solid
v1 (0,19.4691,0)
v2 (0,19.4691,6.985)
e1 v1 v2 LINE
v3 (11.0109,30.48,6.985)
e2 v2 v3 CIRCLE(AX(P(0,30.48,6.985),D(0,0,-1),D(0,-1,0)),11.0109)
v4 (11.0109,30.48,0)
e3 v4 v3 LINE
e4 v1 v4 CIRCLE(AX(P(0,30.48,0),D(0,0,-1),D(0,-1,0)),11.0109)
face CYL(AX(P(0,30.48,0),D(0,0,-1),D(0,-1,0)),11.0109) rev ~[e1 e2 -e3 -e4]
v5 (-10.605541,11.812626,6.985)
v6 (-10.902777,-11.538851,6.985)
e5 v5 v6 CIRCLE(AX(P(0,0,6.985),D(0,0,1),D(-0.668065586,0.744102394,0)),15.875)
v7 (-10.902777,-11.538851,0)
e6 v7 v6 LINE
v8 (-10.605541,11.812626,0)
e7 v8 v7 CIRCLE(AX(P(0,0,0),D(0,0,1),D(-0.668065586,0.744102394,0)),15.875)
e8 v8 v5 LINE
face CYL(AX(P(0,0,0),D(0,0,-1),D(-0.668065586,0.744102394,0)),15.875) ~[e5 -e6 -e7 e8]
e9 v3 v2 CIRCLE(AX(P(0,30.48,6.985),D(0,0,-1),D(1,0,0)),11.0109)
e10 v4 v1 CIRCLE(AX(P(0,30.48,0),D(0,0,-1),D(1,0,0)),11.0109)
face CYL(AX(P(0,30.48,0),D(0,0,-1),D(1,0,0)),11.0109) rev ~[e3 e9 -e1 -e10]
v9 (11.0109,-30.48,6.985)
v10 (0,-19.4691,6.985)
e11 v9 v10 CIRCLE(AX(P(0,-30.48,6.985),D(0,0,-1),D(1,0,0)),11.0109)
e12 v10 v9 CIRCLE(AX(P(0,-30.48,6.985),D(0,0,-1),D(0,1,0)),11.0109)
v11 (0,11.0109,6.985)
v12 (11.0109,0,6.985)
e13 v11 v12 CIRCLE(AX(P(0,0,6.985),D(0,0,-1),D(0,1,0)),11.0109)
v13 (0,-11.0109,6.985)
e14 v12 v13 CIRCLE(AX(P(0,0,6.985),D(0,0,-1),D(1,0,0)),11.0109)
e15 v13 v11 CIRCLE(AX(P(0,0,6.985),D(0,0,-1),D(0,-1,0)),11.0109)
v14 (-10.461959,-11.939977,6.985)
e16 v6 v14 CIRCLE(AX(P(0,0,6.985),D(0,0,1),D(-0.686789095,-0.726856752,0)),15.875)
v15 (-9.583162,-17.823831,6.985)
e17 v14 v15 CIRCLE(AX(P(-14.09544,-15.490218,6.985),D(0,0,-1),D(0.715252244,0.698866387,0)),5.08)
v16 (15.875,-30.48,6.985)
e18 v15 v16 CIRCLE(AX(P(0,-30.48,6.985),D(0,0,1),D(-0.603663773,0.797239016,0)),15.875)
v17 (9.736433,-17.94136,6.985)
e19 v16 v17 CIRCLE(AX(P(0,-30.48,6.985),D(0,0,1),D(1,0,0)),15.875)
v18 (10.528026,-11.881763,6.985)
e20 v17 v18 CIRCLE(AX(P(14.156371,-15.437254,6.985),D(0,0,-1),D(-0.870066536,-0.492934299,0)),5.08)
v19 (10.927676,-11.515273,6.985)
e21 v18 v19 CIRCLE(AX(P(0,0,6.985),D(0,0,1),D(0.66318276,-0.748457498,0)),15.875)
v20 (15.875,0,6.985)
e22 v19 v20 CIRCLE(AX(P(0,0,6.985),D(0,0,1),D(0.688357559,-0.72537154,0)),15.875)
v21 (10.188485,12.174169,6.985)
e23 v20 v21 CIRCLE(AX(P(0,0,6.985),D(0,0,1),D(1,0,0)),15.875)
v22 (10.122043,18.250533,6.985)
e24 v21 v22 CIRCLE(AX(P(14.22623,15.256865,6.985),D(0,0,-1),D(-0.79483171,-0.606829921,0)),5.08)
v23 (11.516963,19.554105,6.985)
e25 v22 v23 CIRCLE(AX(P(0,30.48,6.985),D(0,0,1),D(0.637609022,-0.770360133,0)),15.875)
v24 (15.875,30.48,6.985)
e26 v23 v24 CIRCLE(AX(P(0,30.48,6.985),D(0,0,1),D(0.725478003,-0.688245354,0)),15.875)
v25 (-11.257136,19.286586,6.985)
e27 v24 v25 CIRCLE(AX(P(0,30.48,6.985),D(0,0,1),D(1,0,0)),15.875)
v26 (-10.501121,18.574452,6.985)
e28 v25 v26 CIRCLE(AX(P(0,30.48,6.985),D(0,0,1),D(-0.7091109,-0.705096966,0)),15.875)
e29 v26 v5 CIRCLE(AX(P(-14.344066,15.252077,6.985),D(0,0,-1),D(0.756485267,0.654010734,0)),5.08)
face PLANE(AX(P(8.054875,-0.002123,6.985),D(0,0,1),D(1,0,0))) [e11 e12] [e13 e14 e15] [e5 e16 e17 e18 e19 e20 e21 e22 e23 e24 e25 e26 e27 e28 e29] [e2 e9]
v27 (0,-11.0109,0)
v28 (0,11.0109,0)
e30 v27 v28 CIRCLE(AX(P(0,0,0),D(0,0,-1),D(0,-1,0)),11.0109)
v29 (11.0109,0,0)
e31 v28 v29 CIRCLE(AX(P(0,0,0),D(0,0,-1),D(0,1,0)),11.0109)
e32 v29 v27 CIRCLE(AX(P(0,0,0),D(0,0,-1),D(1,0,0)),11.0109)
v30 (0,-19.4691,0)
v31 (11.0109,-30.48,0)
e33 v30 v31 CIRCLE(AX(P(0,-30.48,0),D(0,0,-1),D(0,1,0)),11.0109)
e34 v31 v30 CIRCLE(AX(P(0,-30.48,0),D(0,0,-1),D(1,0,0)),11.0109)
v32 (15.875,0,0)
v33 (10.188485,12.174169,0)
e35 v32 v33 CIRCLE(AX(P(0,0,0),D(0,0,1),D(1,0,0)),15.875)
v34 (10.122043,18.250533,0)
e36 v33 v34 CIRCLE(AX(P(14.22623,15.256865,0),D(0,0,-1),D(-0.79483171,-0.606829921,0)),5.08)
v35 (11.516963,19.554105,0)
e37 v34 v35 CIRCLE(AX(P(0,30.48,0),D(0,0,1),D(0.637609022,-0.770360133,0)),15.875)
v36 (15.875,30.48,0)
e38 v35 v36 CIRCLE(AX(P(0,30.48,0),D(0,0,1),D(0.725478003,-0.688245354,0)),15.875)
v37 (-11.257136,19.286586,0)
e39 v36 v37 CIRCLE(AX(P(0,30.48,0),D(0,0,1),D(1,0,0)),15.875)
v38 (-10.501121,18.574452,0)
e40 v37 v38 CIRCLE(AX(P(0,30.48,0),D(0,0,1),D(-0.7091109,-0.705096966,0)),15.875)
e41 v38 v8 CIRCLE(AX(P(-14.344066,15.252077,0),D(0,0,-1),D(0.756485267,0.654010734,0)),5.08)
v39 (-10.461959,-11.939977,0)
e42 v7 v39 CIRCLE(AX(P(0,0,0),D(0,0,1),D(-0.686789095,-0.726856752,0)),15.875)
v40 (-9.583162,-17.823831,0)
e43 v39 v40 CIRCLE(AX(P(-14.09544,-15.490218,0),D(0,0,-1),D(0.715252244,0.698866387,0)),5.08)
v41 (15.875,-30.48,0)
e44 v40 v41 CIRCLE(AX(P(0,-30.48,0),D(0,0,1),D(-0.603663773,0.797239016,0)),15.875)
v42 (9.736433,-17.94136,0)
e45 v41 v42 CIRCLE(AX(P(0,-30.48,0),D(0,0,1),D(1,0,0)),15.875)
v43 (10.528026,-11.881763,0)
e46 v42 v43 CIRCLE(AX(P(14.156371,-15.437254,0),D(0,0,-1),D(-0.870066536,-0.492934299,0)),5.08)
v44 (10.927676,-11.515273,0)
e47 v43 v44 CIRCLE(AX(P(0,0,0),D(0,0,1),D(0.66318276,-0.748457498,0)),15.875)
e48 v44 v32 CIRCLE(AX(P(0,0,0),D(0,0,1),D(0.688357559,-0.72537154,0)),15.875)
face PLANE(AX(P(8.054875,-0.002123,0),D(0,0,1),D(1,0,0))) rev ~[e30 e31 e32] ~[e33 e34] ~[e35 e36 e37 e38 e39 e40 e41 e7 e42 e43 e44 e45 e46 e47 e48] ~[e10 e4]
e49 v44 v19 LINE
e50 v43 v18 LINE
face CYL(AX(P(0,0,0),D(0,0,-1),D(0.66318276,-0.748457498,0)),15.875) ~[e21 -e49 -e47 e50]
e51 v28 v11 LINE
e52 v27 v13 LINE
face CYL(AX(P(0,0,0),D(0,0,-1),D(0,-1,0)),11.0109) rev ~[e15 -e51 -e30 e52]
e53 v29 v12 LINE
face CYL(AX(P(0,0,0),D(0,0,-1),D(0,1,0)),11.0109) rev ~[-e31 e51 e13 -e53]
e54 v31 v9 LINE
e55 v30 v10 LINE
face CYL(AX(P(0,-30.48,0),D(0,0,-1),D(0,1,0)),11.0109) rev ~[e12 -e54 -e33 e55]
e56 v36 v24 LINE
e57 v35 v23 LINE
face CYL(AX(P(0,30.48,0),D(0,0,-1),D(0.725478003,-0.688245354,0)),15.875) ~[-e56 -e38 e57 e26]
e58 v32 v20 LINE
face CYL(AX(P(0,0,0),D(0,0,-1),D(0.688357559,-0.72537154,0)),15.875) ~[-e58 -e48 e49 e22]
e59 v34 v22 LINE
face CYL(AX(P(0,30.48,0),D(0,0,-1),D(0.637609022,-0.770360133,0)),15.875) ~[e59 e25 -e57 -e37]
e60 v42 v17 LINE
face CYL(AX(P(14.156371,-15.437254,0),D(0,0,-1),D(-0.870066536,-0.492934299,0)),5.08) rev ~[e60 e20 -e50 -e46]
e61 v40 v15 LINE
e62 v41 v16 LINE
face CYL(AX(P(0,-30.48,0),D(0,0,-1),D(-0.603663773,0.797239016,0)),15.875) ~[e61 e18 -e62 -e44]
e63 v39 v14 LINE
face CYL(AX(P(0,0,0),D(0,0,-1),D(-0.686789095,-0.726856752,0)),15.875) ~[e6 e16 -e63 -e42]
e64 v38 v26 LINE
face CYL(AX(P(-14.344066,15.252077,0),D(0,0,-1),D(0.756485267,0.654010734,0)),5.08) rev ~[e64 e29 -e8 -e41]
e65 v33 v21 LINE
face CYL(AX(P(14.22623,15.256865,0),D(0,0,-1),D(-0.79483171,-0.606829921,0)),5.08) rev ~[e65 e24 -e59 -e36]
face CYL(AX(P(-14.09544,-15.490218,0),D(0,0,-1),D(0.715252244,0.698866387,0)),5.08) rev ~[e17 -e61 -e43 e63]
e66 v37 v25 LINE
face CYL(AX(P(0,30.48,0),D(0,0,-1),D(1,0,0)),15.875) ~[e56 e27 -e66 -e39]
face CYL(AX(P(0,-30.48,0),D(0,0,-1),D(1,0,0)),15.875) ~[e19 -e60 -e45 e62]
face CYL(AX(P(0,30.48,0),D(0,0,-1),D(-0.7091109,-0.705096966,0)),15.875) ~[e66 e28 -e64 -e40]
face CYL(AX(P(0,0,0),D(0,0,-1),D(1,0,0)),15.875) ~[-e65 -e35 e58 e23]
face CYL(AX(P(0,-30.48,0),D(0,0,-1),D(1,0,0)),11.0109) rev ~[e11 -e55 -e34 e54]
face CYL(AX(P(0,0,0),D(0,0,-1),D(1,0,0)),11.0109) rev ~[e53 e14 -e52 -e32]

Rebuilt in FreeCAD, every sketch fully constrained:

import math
import FreeCAD as App
import Part
import Sketcher
Q = App.Units.Quantity

doc = App.newDocument("Part")
body = doc.addObject("PartDesign::Body", "Body")

sketch1 = doc.addObject("Sketcher::SketchObject", "Sketch")
body.addObject(sketch1)
sketch1.AttachmentSupport = (doc.XY_Plane, [""])
sketch1.MapMode = "FlatFace"
sketch1.addGeometry([
    Part.ArcOfCircle(Part.Circle(App.Vector(0, 0, 0), App.Vector(0, 0, 1), 15.9), math.radians(50), math.radians(74)),
    Part.ArcOfCircle(Part.Circle(App.Vector(0, 30.5, 0), App.Vector(0, 0, 1), 15.9), math.radians(-74), math.radians(-50)),
    Part.ArcOfCircle(Part.Circle(App.Vector(14.2, 15.3, 0), App.Vector(0, 0, 1), 5.1), math.radians(122), math.radians(144)),
    Part.ArcOfCircle(Part.Circle(App.Vector(0, 30.5, 0), App.Vector(0, 0, 1), 15.9), math.radians(-43), math.radians(0)),
    Part.ArcOfCircle(Part.Circle(App.Vector(0, 30.5, 0), App.Vector(0, 0, 1), 15.9), math.radians(0), math.radians(225)),
    Part.ArcOfCircle(Part.Circle(App.Vector(-14.3, 15.3, 0), App.Vector(0, 0, 1), 5.1), math.radians(40.84), math.radians(52.58)),
    Part.ArcOfCircle(Part.Circle(App.Vector(0, 30.5, 0), App.Vector(0, 0, 1), 15.9), math.radians(-131), math.radians(-106)),
    Part.ArcOfCircle(Part.Circle(App.Vector(0, 0, 0), App.Vector(0, 0, 1), 15.9), math.radians(106), math.radians(132)),
    Part.ArcOfCircle(Part.Circle(App.Vector(0, 0, 0), App.Vector(0, 0, 1), 15.9), math.radians(132), math.radians(227)),
    Part.ArcOfCircle(Part.Circle(App.Vector(-14.1, -15.5, 0), App.Vector(0, 0, 1), 5.1), math.radians(44.34), math.radians(51.06)),
    Part.ArcOfCircle(Part.Circle(App.Vector(0, 0, 0), App.Vector(0, 0, 1), 15.9), math.radians(-131), math.radians(-106)),
    Part.ArcOfCircle(Part.Circle(App.Vector(0, -30.5, 0), App.Vector(0, 0, 1), 15.9), math.radians(106), math.radians(127)),
    Part.ArcOfCircle(Part.Circle(App.Vector(0, -30.5, 0), App.Vector(0, 0, 1), 15.9), math.radians(127), math.radians(360)),
    Part.ArcOfCircle(Part.Circle(App.Vector(0, -30.5, 0), App.Vector(0, 0, 1), 15.9), math.radians(0), math.radians(52)),
    Part.ArcOfCircle(Part.Circle(App.Vector(0, -30.5, 0), App.Vector(0, 0, 1), 15.9), math.radians(52), math.radians(74)),
    Part.ArcOfCircle(Part.Circle(App.Vector(0, 0, 0), App.Vector(0, 0, 1), 15.9), math.radians(-74), math.radians(-48)),
    Part.ArcOfCircle(Part.Circle(App.Vector(14.2, -15.4, 0), App.Vector(0, 0, 1), 5.1), math.radians(129.46), math.radians(135.58)),
    Part.ArcOfCircle(Part.Circle(App.Vector(0, 0, 0), App.Vector(0, 0, 1), 15.9), math.radians(-46), math.radians(0)),
    Part.ArcOfCircle(Part.Circle(App.Vector(0, 0, 0), App.Vector(0, 0, 1), 15.9), math.radians(0), math.radians(50)),
    Part.ArcOfCircle(Part.Circle(App.Vector(0, -30.5, 0), App.Vector(0, 0, 1), 11), math.radians(0), math.radians(90)),
    Part.ArcOfCircle(Part.Circle(App.Vector(0, -30.5, 0), App.Vector(0, 0, 1), 11), math.radians(90), math.radians(360)),
    Part.ArcOfCircle(Part.Circle(App.Vector(0, 0, 0), App.Vector(0, 0, 1), 11), math.radians(90), math.radians(270)),
    Part.ArcOfCircle(Part.Circle(App.Vector(0, 0, 0), App.Vector(0, 0, 1), 11), math.radians(0), math.radians(90)),
    Part.ArcOfCircle(Part.Circle(App.Vector(0, 0, 0), App.Vector(0, 0, 1), 11), math.radians(-90), math.radians(0)),
    Part.ArcOfCircle(Part.Circle(App.Vector(0, 30.5, 0), App.Vector(0, 0, 1), 11), math.radians(0), math.radians(270)),
    Part.ArcOfCircle(Part.Circle(App.Vector(0, 30.5, 0), App.Vector(0, 0, 1), 11), math.radians(-90), math.radians(0)),
], False)
sketch1.addConstraint([
    Sketcher.Constraint("Coincident", 0, 2, 1, 1),
    Sketcher.Constraint("Coincident", 1, 2, 2, 2),
    Sketcher.Constraint("Coincident", 2, 1, 3, 1),
    Sketcher.Constraint("Tangent", 3, 2, 4, 1),
    Sketcher.Constraint("Coincident", 4, 2, 5, 2),
    Sketcher.Constraint("Coincident", 5, 1, 6, 1),
    Sketcher.Constraint("Coincident", 6, 2, 7, 1),
    Sketcher.Constraint("Tangent", 7, 2, 8, 1),
    Sketcher.Constraint("Coincident", 8, 2, 9, 2),
    Sketcher.Constraint("Coincident", 9, 1, 10, 1),
    Sketcher.Constraint("Coincident", 10, 2, 11, 1),
    Sketcher.Constraint("Tangent", 11, 2, 12, 1),
    Sketcher.Constraint("Tangent", 12, 2, 13, 1),
    Sketcher.Constraint("Tangent", 13, 2, 14, 1),
    Sketcher.Constraint("Coincident", 14, 2, 15, 1),
    Sketcher.Constraint("Coincident", 15, 2, 16, 2),
    Sketcher.Constraint("Coincident", 16, 1, 17, 1),
    Sketcher.Constraint("Tangent", 17, 2, 18, 1),
    Sketcher.Constraint("Tangent", 18, 2, 0, 1),
    Sketcher.Constraint("Tangent", 19, 1, 20, 2),
    Sketcher.Constraint("Coincident", 20, 1, 19, 2),
    Sketcher.Constraint("Tangent", 21, 1, 22, 2),
    Sketcher.Constraint("Tangent", 22, 1, 23, 2),
    Sketcher.Constraint("Tangent", 23, 1, 21, 2),
    Sketcher.Constraint("Tangent", 24, 1, 25, 2),
    Sketcher.Constraint("Coincident", 25, 1, 24, 2),
    Sketcher.Constraint("Coincident", 0, 3, -1, 1),
    Sketcher.Constraint("Coincident", 7, 3, -1, 1),
    Sketcher.Constraint("Coincident", 10, 3, -1, 1),
    Sketcher.Constraint("Coincident", 15, 3, -1, 1),
    Sketcher.Constraint("Coincident", 17, 3, -1, 1),
    Sketcher.Constraint("Coincident", 21, 3, -1, 1),
    Sketcher.Constraint("Coincident", 3, 3, 1, 3),
    Sketcher.Constraint("Coincident", 6, 3, 1, 3),
    Sketcher.Constraint("Coincident", 13, 3, 11, 3),
    Sketcher.Constraint("Coincident", 19, 3, 11, 3),
    Sketcher.Constraint("Coincident", 24, 3, 1, 3),
    Sketcher.Constraint("Equal", 0, 1),
    Sketcher.Constraint("Equal", 1, 3),
    Sketcher.Constraint("Equal", 3, 4),
    Sketcher.Constraint("Equal", 2, 5),
    Sketcher.Constraint("Equal", 4, 6),
    Sketcher.Constraint("Equal", 6, 7),
    Sketcher.Constraint("Equal", 7, 8),
    Sketcher.Constraint("Equal", 5, 9),
    Sketcher.Constraint("Equal", 8, 10),
    Sketcher.Constraint("Equal", 10, 11),
    Sketcher.Constraint("Equal", 13, 14),
    Sketcher.Constraint("Equal", 14, 15),
    Sketcher.Constraint("Equal", 9, 16),
    Sketcher.Constraint("Equal", 20, 21),
    Sketcher.Constraint("Equal", 23, 24),
    Sketcher.Constraint("Symmetric", 1, 3, 11, 3, -1, 1),
    Sketcher.Constraint("Symmetric", 3, 2, 12, 2, -1),
    Sketcher.Constraint("PointOnObject", 17, 2, -1),
    Sketcher.Constraint("PointOnObject", 20, 1, -2),
    Sketcher.Constraint("PointOnObject", 21, 1, -2),
    Sketcher.Constraint("PointOnObject", 22, 1, -1),
    Sketcher.Constraint("PointOnObject", 23, 1, -2),
    Sketcher.Constraint("PointOnObject", 25, 1, -2),
    Sketcher.Constraint("Horizontal", 25, 3, 3, 2),
    Sketcher.Constraint("Horizontal", 12, 2, 19, 1),
    Sketcher.Constraint("Horizontal", 3, 2, 24, 1),
    Sketcher.Constraint("Radius", 2, Q("0.2 in")),
    Sketcher.Constraint("Radius", 0, Q("0.625 in")),
    Sketcher.Constraint("DistanceY", -1, 1, 1, 3, Q("1.2 in")),
    Sketcher.Constraint("Radius", 19, Q("0.4335 in")),
    Sketcher.Constraint("DistanceX", -1, 1, 2, 3, Q("14.22623 mm")),
    Sketcher.Constraint("DistanceX", 9, 3, -1, 1, Q("14.09544 mm")),
    Sketcher.Constraint("DistanceX", -1, 1, 16, 3, Q("14.156371 mm")),
    Sketcher.Constraint("DistanceX", 5, 1, -1, 1, Q("10.501121 mm")),
    Sketcher.Constraint("DistanceX", 7, 2, -1, 1, Q("10.605541 mm")),
    Sketcher.Constraint("DistanceY", 8, 2, -1, 1, Q("11.538851 mm")),
    Sketcher.Constraint("DistanceY", 11, 2, -1, 1, Q("17.823831 mm")),
    Sketcher.Constraint("DistanceY", 13, 2, -1, 1, Q("17.94136 mm")),
    Sketcher.Constraint("DistanceY", -1, 1, 18, 2, Q("12.174169 mm")),
    Sketcher.Constraint("DistanceX", 1, 2, 2, 1, Q("1.39492 mm")),
    Sketcher.Constraint("DistanceX", 5, 3, 4, 2, Q("3.086931 mm")),
    Sketcher.Constraint("DistanceY", 16, 3, 15, 2, Q("3.555491 mm")),
])
pad1 = doc.addObject("PartDesign::Pad", "Pad")
body.addObject(pad1)
pad1.Profile = sketch1
pad1.Length = Q("0.275 in")

sketch2 = doc.addObject("Sketcher::SketchObject", "Sketch001")
body.addObject(sketch2)
sketch2.AttachmentSupport = (doc.XY_Plane, [""])
sketch2.MapMode = "FlatFace"
sketch2.addGeometry([
    Part.ArcOfCircle(Part.Circle(App.Vector(-14.1, -15.5, 0), App.Vector(0, 0, 1), 5.1), math.radians(-27), math.radians(44)),
    Part.ArcOfCircle(Part.Circle(App.Vector(0, -30.5, 0), App.Vector(0, 0, 1), 15.9), math.radians(127), math.radians(360)),
    Part.ArcOfCircle(Part.Circle(App.Vector(0, -30.5, 0), App.Vector(0, 0, 1), 15.9), math.radians(0), math.radians(52)),
    Part.ArcOfCircle(Part.Circle(App.Vector(14.2, -15.4, 0), App.Vector(0, 0, 1), 5.1), math.radians(136), math.radians(210)),
    Part.ArcOfCircle(Part.Circle(App.Vector(0, 0, 0), App.Vector(0, 0, 1), 15.9), math.radians(-48.46), math.radians(-46.5)),
    Part.ArcOfCircle(Part.Circle(App.Vector(0, 0, 0), App.Vector(0, 0, 1), 15.9), math.radians(-46), math.radians(0)),
    Part.ArcOfCircle(Part.Circle(App.Vector(0, 0, 0), App.Vector(0, 0, 1), 15.9), math.radians(0), math.radians(50)),
    Part.ArcOfCircle(Part.Circle(App.Vector(14.2, 15.3, 0), App.Vector(0, 0, 1), 5.1), math.radians(144), math.radians(217)),
    Part.ArcOfCircle(Part.Circle(App.Vector(0, 30.5, 0), App.Vector(0, 0, 1), 15.9), math.radians(-50.39), math.radians(-43.49)),
    Part.ArcOfCircle(Part.Circle(App.Vector(0, 30.5, 0), App.Vector(0, 0, 1), 15.9), math.radians(-43), math.radians(0)),
    Part.ArcOfCircle(Part.Circle(App.Vector(0, 30.5, 0), App.Vector(0, 0, 1), 15.9), math.radians(0), math.radians(225)),
    Part.ArcOfCircle(Part.Circle(App.Vector(0, 30.5, 0), App.Vector(0, 0, 1), 15.9), math.radians(-135.16), math.radians(-131.41)),
    Part.ArcOfCircle(Part.Circle(App.Vector(-14.3, 15.3, 0), App.Vector(0, 0, 1), 5.1), math.radians(-43), math.radians(41)),
    Part.ArcOfCircle(Part.Circle(App.Vector(0, 0, 0), App.Vector(0, 0, 1), 15.9), math.radians(132), math.radians(227)),
    Part.ArcOfCircle(Part.Circle(App.Vector(0, 0, 0), App.Vector(0, 0, 1), 15.9), math.radians(-133.38), math.radians(-131.23)),
    Part.ArcOfCircle(Part.Circle(App.Vector(0, -30.5, 0), App.Vector(0, 0, 1), 11), math.radians(90), math.radians(360)),
    Part.ArcOfCircle(Part.Circle(App.Vector(0, -30.5, 0), App.Vector(0, 0, 1), 11), math.radians(0), math.radians(90)),
    Part.ArcOfCircle(Part.Circle(App.Vector(0, 0, 0), App.Vector(0, 0, 1), 15.9), math.radians(-106.26), math.radians(-90)),
    Part.ArcOfCircle(Part.Circle(App.Vector(0, -30.5, 0), App.Vector(0, 0, 1), 15.9), math.radians(90), math.radians(106.26)),
    Part.ArcOfCircle(Part.Circle(App.Vector(0, -30.5, 0), App.Vector(0, 0, 1), 15.9), math.radians(73.74), math.radians(90)),
    Part.ArcOfCircle(Part.Circle(App.Vector(0, 0, 0), App.Vector(0, 0, 1), 15.9), math.radians(-90), math.radians(-73.74)),
    Part.ArcOfCircle(Part.Circle(App.Vector(0, 0, 0), App.Vector(0, 0, 1), 11), math.radians(0), math.radians(90)),
    Part.ArcOfCircle(Part.Circle(App.Vector(0, 0, 0), App.Vector(0, 0, 1), 11), math.radians(-90), math.radians(0)),
    Part.ArcOfCircle(Part.Circle(App.Vector(0, 0, 0), App.Vector(0, 0, 1), 11), math.radians(90), math.radians(270)),
    Part.ArcOfCircle(Part.Circle(App.Vector(0, 0, 0), App.Vector(0, 0, 1), 15.9), math.radians(73.74), math.radians(90)),
    Part.ArcOfCircle(Part.Circle(App.Vector(0, 30.5, 0), App.Vector(0, 0, 1), 15.9), math.radians(-90), math.radians(-73.74)),
    Part.ArcOfCircle(Part.Circle(App.Vector(0, 30.5, 0), App.Vector(0, 0, 1), 15.9), math.radians(-106.26), math.radians(-90)),
    Part.ArcOfCircle(Part.Circle(App.Vector(0, 0, 0), App.Vector(0, 0, 1), 15.9), math.radians(90), math.radians(106.26)),
    Part.ArcOfCircle(Part.Circle(App.Vector(0, 30.5, 0), App.Vector(0, 0, 1), 11), math.radians(-90), math.radians(0)),
    Part.ArcOfCircle(Part.Circle(App.Vector(0, 30.5, 0), App.Vector(0, 0, 1), 11), math.radians(0), math.radians(270)),
], False)
sketch2.addConstraint([
    Sketcher.Constraint("Coincident", 0, 1, 1, 1),
    Sketcher.Constraint("Tangent", 1, 2, 2, 1),
    Sketcher.Constraint("Coincident", 2, 2, 3, 2),
    Sketcher.Constraint("Coincident", 3, 1, 4, 1),
    Sketcher.Constraint("Tangent", 4, 2, 5, 1),
    Sketcher.Constraint("Tangent", 5, 2, 6, 1),
    Sketcher.Constraint("Coincident", 6, 2, 7, 2),
    Sketcher.Constraint("Coincident", 7, 1, 8, 1),
    Sketcher.Constraint("Tangent", 8, 2, 9, 1),
    Sketcher.Constraint("Tangent", 9, 2, 10, 1),
    Sketcher.Constraint("Tangent", 10, 2, 11, 1),
    Sketcher.Constraint("Coincident", 11, 2, 12, 2),
    Sketcher.Constraint("Coincident", 12, 1, 13, 1),
    Sketcher.Constraint("Tangent", 13, 2, 14, 1),
    Sketcher.Constraint("Coincident", 14, 2, 0, 2),
    Sketcher.Constraint("Tangent", 15, 1, 16, 2),
    Sketcher.Constraint("Coincident", 16, 1, 15, 2),
    Sketcher.Constraint("Coincident", 17, 1, 18, 2),
    Sketcher.Constraint("Tangent", 18, 1, 19, 2),
    Sketcher.Constraint("Coincident", 19, 1, 20, 2),
    Sketcher.Constraint("Tangent", 20, 1, 17, 2),
    Sketcher.Constraint("Tangent", 21, 1, 22, 2),
    Sketcher.Constraint("Tangent", 22, 1, 23, 2),
    Sketcher.Constraint("Tangent", 23, 1, 21, 2),
    Sketcher.Constraint("Coincident", 24, 1, 25, 2),
    Sketcher.Constraint("Tangent", 25, 1, 26, 2),
    Sketcher.Constraint("Coincident", 26, 1, 27, 2),
    Sketcher.Constraint("Tangent", 27, 1, 24, 2),
    Sketcher.Constraint("Tangent", 28, 1, 29, 2),
    Sketcher.Constraint("Coincident", 29, 1, 28, 2),
    Sketcher.Constraint("Coincident", 4, 3, -1, 1),
    Sketcher.Constraint("Coincident", 6, 3, -1, 1),
    Sketcher.Constraint("Coincident", 13, 3, -1, 1),
    Sketcher.Constraint("Coincident", 17, 3, -1, 1),
    Sketcher.Constraint("Coincident", 21, 3, -1, 1),
    Sketcher.Constraint("Coincident", 24, 3, -1, 1),
    Sketcher.Constraint("Coincident", 10, 3, 8, 3),
    Sketcher.Constraint("Coincident", 15, 3, 1, 3),
    Sketcher.Constraint("Coincident", 18, 3, 1, 3),
    Sketcher.Constraint("Coincident", 25, 3, 8, 3),
    Sketcher.Constraint("Coincident", 28, 3, 8, 3),
    Sketcher.Constraint("Equal", 1, 2),
    Sketcher.Constraint("Equal", 0, 3),
    Sketcher.Constraint("Equal", 2, 4),
    Sketcher.Constraint("Equal", 3, 7),
    Sketcher.Constraint("Equal", 6, 8),
    Sketcher.Constraint("Equal", 10, 11),
    Sketcher.Constraint("Equal", 7, 12),
    Sketcher.Constraint("Equal", 11, 13),
    Sketcher.Constraint("Equal", 13, 14),
    Sketcher.Constraint("Equal", 14, 17),
    Sketcher.Constraint("Equal", 17, 18),
    Sketcher.Constraint("Equal", 18, 19),
    Sketcher.Constraint("Equal", 19, 20),
    Sketcher.Constraint("Equal", 16, 21),
    Sketcher.Constraint("Equal", 20, 24),
    Sketcher.Constraint("Equal", 24, 25),
    Sketcher.Constraint("Equal", 25, 26),
    Sketcher.Constraint("Equal", 26, 27),
    Sketcher.Constraint("Equal", 23, 28),
    Sketcher.Constraint("Symmetric", 1, 3, 8, 3, -1, 1),
    Sketcher.Constraint("Symmetric", 1, 2, 9, 2, -1),
    Sketcher.Constraint("PointOnObject", 5, 2, -1),
    Sketcher.Constraint("PointOnObject", 15, 1, -2),
    Sketcher.Constraint("PointOnObject", 18, 1, -2),
    Sketcher.Constraint("PointOnObject", 20, 1, -2),
    Sketcher.Constraint("PointOnObject", 21, 1, -1),
    Sketcher.Constraint("PointOnObject", 22, 1, -2),
    Sketcher.Constraint("PointOnObject", 23, 1, -2),
    Sketcher.Constraint("PointOnObject", 25, 1, -2),
    Sketcher.Constraint("PointOnObject", 27, 1, -2),
    Sketcher.Constraint("PointOnObject", 28, 1, -2),
    Sketcher.Constraint("Horizontal", 19, 3, 1, 2),
    Sketcher.Constraint("Horizontal", 1, 2, 16, 1),
    Sketcher.Constraint("Horizontal", 9, 2, 29, 1),
    Sketcher.Constraint("Radius", 0, Q("0.2 in")),
    Sketcher.Constraint("Radius", 1, Q("0.625 in")),
    Sketcher.Constraint("DistanceY", 1, 3, -1, 1, Q("1.2 in")),
    Sketcher.Constraint("Radius", 15, Q("0.4335 in")),
    Sketcher.Constraint("DistanceX", 0, 3, -1, 1, Q("14.09544 mm")),
    Sketcher.Constraint("DistanceX", -1, 1, 3, 3, Q("14.156371 mm")),
    Sketcher.Constraint("DistanceX", -1, 1, 7, 3, Q("14.22623 mm")),
    Sketcher.Constraint("DistanceY", 0, 1, -1, 1, Q("17.823831 mm")),
    Sketcher.Constraint("DistanceY", 2, 2, -1, 1, Q("17.94136 mm")),
    Sketcher.Constraint("DistanceY", -1, 1, 6, 2, Q("12.174169 mm")),
    Sketcher.Constraint("DistanceX", 11, 2, -1, 1, Q("10.501121 mm")),
    Sketcher.Constraint("DistanceX", 12, 1, -1, 1, Q("10.605541 mm")),
    Sketcher.Constraint("DistanceY", 13, 2, -1, 1, Q("11.538851 mm")),
    Sketcher.Constraint("DistanceX", 3, 1, 4, 2, Q("0.39965 mm")),
    Sketcher.Constraint("DistanceX", 7, 1, 8, 2, Q("1.39492 mm")),
    Sketcher.Constraint("DistanceX", 12, 3, 10, 2, Q("3.086931 mm")),
])
pad2 = doc.addObject("PartDesign::Pad", "Pad001")
body.addObject(pad2)
pad2.Profile = sketch2
pad2.Length = Q("0.275 in")

doc.recompute()
